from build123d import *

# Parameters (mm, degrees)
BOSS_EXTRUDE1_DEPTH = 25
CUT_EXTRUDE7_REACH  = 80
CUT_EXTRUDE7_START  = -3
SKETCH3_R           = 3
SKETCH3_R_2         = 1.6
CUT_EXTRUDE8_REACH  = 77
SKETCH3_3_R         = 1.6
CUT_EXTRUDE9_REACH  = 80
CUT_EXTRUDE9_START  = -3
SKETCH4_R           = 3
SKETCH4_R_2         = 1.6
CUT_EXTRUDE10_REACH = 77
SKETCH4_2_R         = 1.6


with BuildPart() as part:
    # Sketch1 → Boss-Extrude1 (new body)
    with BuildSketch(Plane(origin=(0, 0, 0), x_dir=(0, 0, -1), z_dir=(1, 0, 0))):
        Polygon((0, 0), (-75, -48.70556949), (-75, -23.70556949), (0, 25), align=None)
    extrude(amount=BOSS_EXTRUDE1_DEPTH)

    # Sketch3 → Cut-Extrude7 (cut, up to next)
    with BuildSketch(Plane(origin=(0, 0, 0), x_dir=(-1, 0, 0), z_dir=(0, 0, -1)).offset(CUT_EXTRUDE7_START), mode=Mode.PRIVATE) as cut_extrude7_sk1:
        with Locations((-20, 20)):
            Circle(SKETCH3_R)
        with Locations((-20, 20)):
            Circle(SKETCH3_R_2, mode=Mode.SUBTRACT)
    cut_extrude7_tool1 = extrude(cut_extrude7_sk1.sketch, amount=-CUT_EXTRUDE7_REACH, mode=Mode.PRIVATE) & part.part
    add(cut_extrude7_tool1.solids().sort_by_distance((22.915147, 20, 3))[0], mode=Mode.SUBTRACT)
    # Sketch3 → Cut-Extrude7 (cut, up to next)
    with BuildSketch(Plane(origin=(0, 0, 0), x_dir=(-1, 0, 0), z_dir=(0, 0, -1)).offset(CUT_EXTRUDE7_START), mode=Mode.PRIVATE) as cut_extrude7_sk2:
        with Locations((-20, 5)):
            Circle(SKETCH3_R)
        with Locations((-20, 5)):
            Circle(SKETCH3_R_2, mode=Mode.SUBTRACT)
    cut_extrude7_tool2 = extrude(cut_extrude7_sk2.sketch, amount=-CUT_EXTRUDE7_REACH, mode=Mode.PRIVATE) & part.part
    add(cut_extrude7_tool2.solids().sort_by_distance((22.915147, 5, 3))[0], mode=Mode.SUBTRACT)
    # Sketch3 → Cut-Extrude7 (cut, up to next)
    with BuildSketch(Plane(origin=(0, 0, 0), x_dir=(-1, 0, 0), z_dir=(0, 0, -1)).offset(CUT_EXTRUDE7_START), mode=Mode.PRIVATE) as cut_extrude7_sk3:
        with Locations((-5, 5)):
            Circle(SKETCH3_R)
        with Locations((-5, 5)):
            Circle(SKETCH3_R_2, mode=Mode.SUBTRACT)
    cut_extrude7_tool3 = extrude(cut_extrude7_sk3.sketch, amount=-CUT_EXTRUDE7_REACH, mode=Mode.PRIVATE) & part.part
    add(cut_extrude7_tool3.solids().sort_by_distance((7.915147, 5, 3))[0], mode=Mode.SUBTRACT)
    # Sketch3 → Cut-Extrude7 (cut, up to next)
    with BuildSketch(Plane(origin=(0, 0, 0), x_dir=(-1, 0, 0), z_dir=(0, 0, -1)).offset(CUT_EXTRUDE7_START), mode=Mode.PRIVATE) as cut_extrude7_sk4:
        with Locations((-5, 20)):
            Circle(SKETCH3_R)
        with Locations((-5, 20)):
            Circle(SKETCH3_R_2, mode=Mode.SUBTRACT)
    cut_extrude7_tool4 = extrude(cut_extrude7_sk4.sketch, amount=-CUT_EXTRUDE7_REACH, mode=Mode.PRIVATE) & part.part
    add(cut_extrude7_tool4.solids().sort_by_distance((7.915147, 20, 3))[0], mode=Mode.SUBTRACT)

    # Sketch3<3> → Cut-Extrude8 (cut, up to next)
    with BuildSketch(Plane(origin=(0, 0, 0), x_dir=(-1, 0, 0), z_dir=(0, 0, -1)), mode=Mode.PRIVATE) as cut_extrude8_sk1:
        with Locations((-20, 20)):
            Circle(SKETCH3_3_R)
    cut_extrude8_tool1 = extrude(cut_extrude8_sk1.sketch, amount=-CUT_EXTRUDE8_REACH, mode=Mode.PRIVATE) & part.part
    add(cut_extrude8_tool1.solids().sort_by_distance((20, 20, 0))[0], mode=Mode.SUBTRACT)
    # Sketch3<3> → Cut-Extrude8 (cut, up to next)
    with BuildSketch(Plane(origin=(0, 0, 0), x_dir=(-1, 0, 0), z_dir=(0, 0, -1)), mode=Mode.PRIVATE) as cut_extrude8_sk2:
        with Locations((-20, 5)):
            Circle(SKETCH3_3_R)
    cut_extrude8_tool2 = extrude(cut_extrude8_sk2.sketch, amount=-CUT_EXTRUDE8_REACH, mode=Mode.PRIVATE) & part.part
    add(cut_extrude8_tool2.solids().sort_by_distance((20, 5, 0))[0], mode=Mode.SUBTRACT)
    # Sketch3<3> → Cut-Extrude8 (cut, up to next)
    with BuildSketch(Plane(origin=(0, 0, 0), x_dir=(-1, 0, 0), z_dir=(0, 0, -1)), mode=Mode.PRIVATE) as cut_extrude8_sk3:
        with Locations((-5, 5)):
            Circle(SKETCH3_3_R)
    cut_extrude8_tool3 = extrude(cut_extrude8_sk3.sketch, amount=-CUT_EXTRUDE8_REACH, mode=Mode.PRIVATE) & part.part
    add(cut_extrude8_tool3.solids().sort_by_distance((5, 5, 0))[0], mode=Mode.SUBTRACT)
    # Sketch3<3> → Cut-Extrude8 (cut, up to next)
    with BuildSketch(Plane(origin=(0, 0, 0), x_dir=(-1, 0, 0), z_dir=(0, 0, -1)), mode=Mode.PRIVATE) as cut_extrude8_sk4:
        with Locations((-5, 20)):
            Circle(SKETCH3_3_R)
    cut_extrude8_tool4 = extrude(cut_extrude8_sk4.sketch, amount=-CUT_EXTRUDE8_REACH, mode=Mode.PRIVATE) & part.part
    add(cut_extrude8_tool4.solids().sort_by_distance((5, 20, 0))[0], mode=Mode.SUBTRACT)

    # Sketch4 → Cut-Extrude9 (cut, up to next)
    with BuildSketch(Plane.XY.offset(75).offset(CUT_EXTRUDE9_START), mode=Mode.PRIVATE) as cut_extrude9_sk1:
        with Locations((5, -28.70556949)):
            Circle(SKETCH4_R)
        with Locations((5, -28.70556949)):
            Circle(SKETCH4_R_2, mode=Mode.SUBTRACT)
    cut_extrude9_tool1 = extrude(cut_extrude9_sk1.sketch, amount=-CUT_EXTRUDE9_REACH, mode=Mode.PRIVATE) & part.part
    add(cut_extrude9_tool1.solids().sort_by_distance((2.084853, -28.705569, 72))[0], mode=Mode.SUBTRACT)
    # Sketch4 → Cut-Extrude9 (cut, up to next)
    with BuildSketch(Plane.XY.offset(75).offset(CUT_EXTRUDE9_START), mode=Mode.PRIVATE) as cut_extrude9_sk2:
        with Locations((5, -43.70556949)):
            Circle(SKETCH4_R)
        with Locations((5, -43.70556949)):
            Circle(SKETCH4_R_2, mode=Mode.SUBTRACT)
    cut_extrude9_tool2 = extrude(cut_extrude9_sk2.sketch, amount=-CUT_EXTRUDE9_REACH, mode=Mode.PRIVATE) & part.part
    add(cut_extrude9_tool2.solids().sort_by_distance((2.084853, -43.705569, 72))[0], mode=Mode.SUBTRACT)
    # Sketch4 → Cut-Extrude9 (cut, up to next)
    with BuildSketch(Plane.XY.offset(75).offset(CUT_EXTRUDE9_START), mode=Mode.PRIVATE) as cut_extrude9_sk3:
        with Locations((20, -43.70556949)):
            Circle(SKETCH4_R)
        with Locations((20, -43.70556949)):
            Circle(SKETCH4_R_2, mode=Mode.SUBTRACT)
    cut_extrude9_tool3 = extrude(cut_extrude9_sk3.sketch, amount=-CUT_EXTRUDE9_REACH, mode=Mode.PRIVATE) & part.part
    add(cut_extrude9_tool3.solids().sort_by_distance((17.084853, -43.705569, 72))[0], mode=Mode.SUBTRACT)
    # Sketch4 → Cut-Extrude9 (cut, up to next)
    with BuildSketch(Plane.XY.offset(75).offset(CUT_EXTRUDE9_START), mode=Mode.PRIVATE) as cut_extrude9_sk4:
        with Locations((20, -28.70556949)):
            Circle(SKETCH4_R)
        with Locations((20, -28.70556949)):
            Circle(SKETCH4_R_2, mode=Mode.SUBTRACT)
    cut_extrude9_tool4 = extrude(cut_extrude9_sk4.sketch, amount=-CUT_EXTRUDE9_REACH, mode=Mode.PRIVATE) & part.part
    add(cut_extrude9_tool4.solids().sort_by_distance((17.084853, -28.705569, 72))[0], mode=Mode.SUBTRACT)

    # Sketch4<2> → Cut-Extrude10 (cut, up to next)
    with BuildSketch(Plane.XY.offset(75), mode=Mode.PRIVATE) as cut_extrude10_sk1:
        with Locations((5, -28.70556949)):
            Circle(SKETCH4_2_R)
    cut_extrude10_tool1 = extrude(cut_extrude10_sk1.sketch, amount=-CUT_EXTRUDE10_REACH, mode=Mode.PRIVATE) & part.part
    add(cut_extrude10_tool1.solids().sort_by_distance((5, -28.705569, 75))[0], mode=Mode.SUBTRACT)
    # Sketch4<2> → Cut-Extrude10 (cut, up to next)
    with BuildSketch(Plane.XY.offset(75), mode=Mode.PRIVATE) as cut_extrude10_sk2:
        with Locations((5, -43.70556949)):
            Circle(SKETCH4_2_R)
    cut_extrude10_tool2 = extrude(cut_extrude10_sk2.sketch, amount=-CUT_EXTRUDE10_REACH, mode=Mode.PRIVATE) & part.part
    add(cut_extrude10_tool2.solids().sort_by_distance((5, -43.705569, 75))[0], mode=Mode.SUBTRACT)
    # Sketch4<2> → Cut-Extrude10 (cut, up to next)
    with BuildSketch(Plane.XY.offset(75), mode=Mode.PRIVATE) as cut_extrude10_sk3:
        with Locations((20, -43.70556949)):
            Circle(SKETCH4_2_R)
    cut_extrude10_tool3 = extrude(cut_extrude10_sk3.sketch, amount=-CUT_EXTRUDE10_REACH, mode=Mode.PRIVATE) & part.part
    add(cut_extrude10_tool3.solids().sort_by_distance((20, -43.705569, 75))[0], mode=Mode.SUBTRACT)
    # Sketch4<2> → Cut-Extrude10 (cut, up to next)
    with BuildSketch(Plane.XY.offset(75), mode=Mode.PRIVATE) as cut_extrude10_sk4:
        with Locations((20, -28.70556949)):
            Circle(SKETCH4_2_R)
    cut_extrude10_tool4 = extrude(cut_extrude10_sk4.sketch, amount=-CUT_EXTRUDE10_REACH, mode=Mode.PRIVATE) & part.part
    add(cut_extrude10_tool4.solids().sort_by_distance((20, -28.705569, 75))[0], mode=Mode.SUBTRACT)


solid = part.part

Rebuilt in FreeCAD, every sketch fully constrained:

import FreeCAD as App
import Part
import Sketcher
from FreeCAD import Vector
Q = App.Units.Quantity


def add_polygon(sketch, points):
    """Adds a closed chain of lines whose ends are joined by coincident constraints."""
    first, n = sketch.GeometryCount, len(points)
    for a, b in zip(points, points[1:] + points[:1]):
        sketch.addGeometry(Part.LineSegment(App.Vector(*a, 0), App.Vector(*b, 0)), False)
    for i in range(n):
        sketch.addConstraint(Sketcher.Constraint("Coincident", first + i, 2, first + (i + 1) % n, 1))

doc = App.newDocument("Part")
params = doc.addObject("Spreadsheet::Sheet", "Params")
for row, (alias, value) in enumerate([
    ("sketch1_width", "25 mm"),
    ("pad1_length", "25 mm"),
    ("sketch2_diameter", "6 mm"),
    ("sketch2_diameter2", "3.2 mm"),
    ("sketch3_diameter", "6 mm"),
    ("sketch3_diameter2", "3.2 mm"),
    ("sketch4_diameter", "6 mm"),
    ("sketch4_diameter2", "3.2 mm"),
    ("sketch5_diameter", "6 mm"),
    ("sketch5_diameter2", "3.2 mm"),
    ("sketch6_diameter", "3.2 mm"),
    ("sketch7_diameter", "3.2 mm"),
    ("sketch8_diameter", "3.2 mm"),
    ("sketch9_diameter", "3.2 mm"),
    ("sketch10_diameter", "6 mm"),
    ("sketch10_diameter2", "3.2 mm"),
    ("sketch11_diameter", "6 mm"),
    ("sketch11_diameter2", "3.2 mm"),
    ("sketch12_diameter", "6 mm"),
    ("sketch12_diameter2", "3.2 mm"),
    ("sketch13_diameter", "6 mm"),
    ("sketch13_diameter2", "3.2 mm"),
    ("sketch14_diameter", "3.2 mm"),
    ("sketch15_diameter", "3.2 mm"),
    ("sketch16_diameter", "3.2 mm"),
    ("sketch17_diameter", "3.2 mm"),
], start=1):
    params.set(f"A{row}", alias)
    params.set(f"B{row}", "=" + value)
    params.setAlias(f"B{row}", alias)

body = doc.addObject("PartDesign::Body", "Body")

sketch1 = body.newObject("Sketcher::SketchObject", "Sketch")
sketch1.AttachmentSupport = (doc.getObject("YZ_Plane"), [""])
sketch1.MapMode = "FlatFace"
add_polygon(sketch1, [(-49, 75), (0, 0), (25, 0), (-24, 75)])
sketch1.addConstraint([
    Sketcher.Constraint("Horizontal", 1),
    Sketcher.Constraint("Horizontal", 3),
    Sketcher.Constraint("Coincident", 0, 2, -1, 1),
    Sketcher.Constraint("Parallel", 0, 2),
    Sketcher.Constraint("DistanceX", 1, 1, 1, 2, Q("25 mm")),
    Sketcher.Constraint("Angle", 0, Q("-57 deg")),
    Sketcher.Constraint("DistanceY", -1, 1, 2, 2, Q("75 mm")),
])
sketch1.setExpression("Constraints[8]", "Params.sketch1_width")
pad1 = body.newObject("PartDesign::Pad", "Pad")
pad1.Profile = sketch1
pad1.setExpression("Length", "Params.pad1_length")

sketch2 = body.newObject("Sketcher::SketchObject", "Sketch001")
sketch2.AttachmentSupport = (doc.getObject("XY_Plane"), [""])
sketch2.MapMode = "FlatFace"
sketch2.AttachmentOffset = App.Placement(Vector(0, 0, 3), App.Rotation())
sketch2.addGeometry([
    Part.Circle(Vector(20, 20, 0), Vector(0, 0, 1), 3),
    Part.Circle(Vector(20, 20, 0), Vector(0, 0, 1), 1.6),
], False)
sketch2.addConstraint([
    Sketcher.Constraint("Coincident", 1, 3, 0, 3),
    Sketcher.Constraint("Diameter", 0, Q("6 mm")),
    Sketcher.Constraint("Diameter", 1, Q("3.2 mm")),
    Sketcher.Constraint("DistanceX", -1, 1, 0, 3, Q("20 mm")),
    Sketcher.Constraint("DistanceY", -1, 1, 0, 3, Q("20 mm")),
])
sketch2.setExpression("Constraints[1]", "Params.sketch2_diameter")
sketch2.setExpression("Constraints[2]", "Params.sketch2_diameter2")
pocket1 = body.newObject("PartDesign::Pocket", "Pocket")
pocket1.Profile = sketch2
pocket1.Type = "UpToFirst"
pocket1.Reversed = True

sketch3 = body.newObject("Sketcher::SketchObject", "Sketch002")
sketch3.AttachmentSupport = (doc.getObject("XY_Plane"), [""])
sketch3.MapMode = "FlatFace"
sketch3.AttachmentOffset = App.Placement(Vector(0, 0, 3), App.Rotation())
sketch3.addGeometry([
    Part.Circle(Vector(20, 5, 0), Vector(0, 0, 1), 3),
    Part.Circle(Vector(20, 5, 0), Vector(0, 0, 1), 1.6),
], False)
sketch3.addConstraint([
    Sketcher.Constraint("Coincident", 1, 3, 0, 3),
    Sketcher.Constraint("Diameter", 0, Q("6 mm")),
    Sketcher.Constraint("Diameter", 1, Q("3.2 mm")),
    Sketcher.Constraint("DistanceX", -1, 1, 0, 3, Q("20 mm")),
    Sketcher.Constraint("DistanceY", -1, 1, 0, 3, Q("5 mm")),
])
sketch3.setExpression("Constraints[1]", "Params.sketch3_diameter")
sketch3.setExpression("Constraints[2]", "Params.sketch3_diameter2")
pocket2 = body.newObject("PartDesign::Pocket", "Pocket001")
pocket2.Profile = sketch3
pocket2.Type = "UpToFirst"
pocket2.Reversed = True

sketch4 = body.newObject("Sketcher::SketchObject", "Sketch003")
sketch4.AttachmentSupport = (doc.getObject("XY_Plane"), [""])
sketch4.MapMode = "FlatFace"
sketch4.AttachmentOffset = App.Placement(Vector(0, 0, 3), App.Rotation())
sketch4.addGeometry([
    Part.Circle(Vector(5, 5, 0), Vector(0, 0, 1), 3),
    Part.Circle(Vector(5, 5, 0), Vector(0, 0, 1), 1.6),
], False)
sketch4.addConstraint([
    Sketcher.Constraint("Coincident", 1, 3, 0, 3),
    Sketcher.Constraint("Diameter", 0, Q("6 mm")),
    Sketcher.Constraint("Diameter", 1, Q("3.2 mm")),
    Sketcher.Constraint("DistanceX", -1, 1, 0, 3, Q("5 mm")),
    Sketcher.Constraint("DistanceY", -1, 1, 0, 3, Q("5 mm")),
])
sketch4.setExpression("Constraints[1]", "Params.sketch4_diameter")
sketch4.setExpression("Constraints[2]", "Params.sketch4_diameter2")
pocket3 = body.newObject("PartDesign::Pocket", "Pocket002")
pocket3.Profile = sketch4
pocket3.Type = "UpToFirst"
pocket3.Reversed = True

sketch5 = body.newObject("Sketcher::SketchObject", "Sketch004")
sketch5.AttachmentSupport = (doc.getObject("XY_Plane"), [""])
sketch5.MapMode = "FlatFace"
sketch5.AttachmentOffset = App.Placement(Vector(0, 0, 3), App.Rotation())
sketch5.addGeometry([
    Part.Circle(Vector(5, 20, 0), Vector(0, 0, 1), 3),
    Part.Circle(Vector(5, 20, 0), Vector(0, 0, 1), 1.6),
], False)
sketch5.addConstraint([
    Sketcher.Constraint("Coincident", 1, 3, 0, 3),
    Sketcher.Constraint("Diameter", 0, Q("6 mm")),
    Sketcher.Constraint("Diameter", 1, Q("3.2 mm")),
    Sketcher.Constraint("DistanceX", -1, 1, 0, 3, Q("5 mm")),
    Sketcher.Constraint("DistanceY", -1, 1, 0, 3, Q("20 mm")),
])
sketch5.setExpression("Constraints[1]", "Params.sketch5_diameter")
sketch5.setExpression("Constraints[2]", "Params.sketch5_diameter2")
pocket4 = body.newObject("PartDesign::Pocket", "Pocket003")
pocket4.Profile = sketch5
pocket4.Type = "UpToFirst"
pocket4.Reversed = True

sketch6 = body.newObject("Sketcher::SketchObject", "Sketch005")
sketch6.AttachmentSupport = (doc.getObject("XY_Plane"), [""])
sketch6.MapMode = "FlatFace"
sketch6.addGeometry(Part.Circle(Vector(20, 20, 0), Vector(0, 0, 1), 1.6), False)
sketch6.addConstraint([
    Sketcher.Constraint("Diameter", 0, Q("3.2 mm")),
    Sketcher.Constraint("DistanceX", -1, 1, 0, 3, Q("20 mm")),
    Sketcher.Constraint("DistanceY", -1, 1, 0, 3, Q("20 mm")),
])
sketch6.setExpression("Constraints[0]", "Params.sketch6_diameter")
pocket5 = body.newObject("PartDesign::Pocket", "Pocket004")
pocket5.Profile = sketch6
pocket5.Type = "UpToFirst"
pocket5.Reversed = True

sketch7 = body.newObject("Sketcher::SketchObject", "Sketch006")
sketch7.AttachmentSupport = (doc.getObject("XY_Plane"), [""])
sketch7.MapMode = "FlatFace"
sketch7.addGeometry(Part.Circle(Vector(20, 5, 0), Vector(0, 0, 1), 1.6), False)
sketch7.addConstraint([
    Sketcher.Constraint("Diameter", 0, Q("3.2 mm")),
    Sketcher.Constraint("DistanceX", -1, 1, 0, 3, Q("20 mm")),
    Sketcher.Constraint("DistanceY", -1, 1, 0, 3, Q("5 mm")),
])
sketch7.setExpression("Constraints[0]", "Params.sketch7_diameter")
pocket6 = body.newObject("PartDesign::Pocket", "Pocket005")
pocket6.Profile = sketch7
pocket6.Type = "UpToFirst"
pocket6.Reversed = True

sketch8 = body.newObject("Sketcher::SketchObject", "Sketch007")
sketch8.AttachmentSupport = (doc.getObject("XY_Plane"), [""])
sketch8.MapMode = "FlatFace"
sketch8.addGeometry(Part.Circle(Vector(5, 5, 0), Vector(0, 0, 1), 1.6), False)
sketch8.addConstraint([
    Sketcher.Constraint("Diameter", 0, Q("3.2 mm")),
    Sketcher.Constraint("DistanceX", -1, 1, 0, 3, Q("5 mm")),
    Sketcher.Constraint("DistanceY", -1, 1, 0, 3, Q("5 mm")),
])
sketch8.setExpression("Constraints[0]", "Params.sketch8_diameter")
pocket7 = body.newObject("PartDesign::Pocket", "Pocket006")
pocket7.Profile = sketch8
pocket7.Type = "UpToFirst"
pocket7.Reversed = True

sketch9 = body.newObject("Sketcher::SketchObject", "Sketch008")
sketch9.AttachmentSupport = (doc.getObject("XY_Plane"), [""])
sketch9.MapMode = "FlatFace"
sketch9.addGeometry(Part.Circle(Vector(5, 20, 0), Vector(0, 0, 1), 1.6), False)
sketch9.addConstraint([
    Sketcher.Constraint("Diameter", 0, Q("3.2 mm")),
    Sketcher.Constraint("DistanceX", -1, 1, 0, 3, Q("5 mm")),
    Sketcher.Constraint("DistanceY", -1, 1, 0, 3, Q("20 mm")),
])
sketch9.setExpression("Constraints[0]", "Params.sketch9_diameter")
pocket8 = body.newObject("PartDesign::Pocket", "Pocket007")
pocket8.Profile = sketch9
pocket8.Type = "UpToFirst"
pocket8.Reversed = True

sketch10 = body.newObject("Sketcher::SketchObject", "Sketch009")
sketch10.AttachmentSupport = (doc.getObject("XY_Plane"), [""])
sketch10.MapMode = "FlatFace"
sketch10.AttachmentOffset = App.Placement(Vector(0, 0, 72), App.Rotation())
sketch10.addGeometry([
    Part.Circle(Vector(5, -28.7, 0), Vector(0, 0, 1), 3),
    Part.Circle(Vector(5, -28.7, 0), Vector(0, 0, 1), 1.6),
], False)
sketch10.addConstraint([
    Sketcher.Constraint("Coincident", 1, 3, 0, 3),
    Sketcher.Constraint("Diameter", 0, Q("6 mm")),
    Sketcher.Constraint("Diameter", 1, Q("3.2 mm")),
    Sketcher.Constraint("DistanceX", -1, 1, 0, 3, Q("5 mm")),
    Sketcher.Constraint("DistanceY", 0, 3, -1, 1, Q("28.705569 mm")),
])
sketch10.setExpression("Constraints[1]", "Params.sketch10_diameter")
sketch10.setExpression("Constraints[2]", "Params.sketch10_diameter2")
pocket9 = body.newObject("PartDesign::Pocket", "Pocket008")
pocket9.Profile = sketch10
pocket9.Type = "UpToFirst"

sketch11 = body.newObject("Sketcher::SketchObject", "Sketch010")
sketch11.AttachmentSupport = (doc.getObject("XY_Plane"), [""])
sketch11.MapMode = "FlatFace"
sketch11.AttachmentOffset = App.Placement(Vector(0, 0, 72), App.Rotation())
sketch11.addGeometry([
    Part.Circle(Vector(5, -43.7, 0), Vector(0, 0, 1), 3),
    Part.Circle(Vector(5, -43.7, 0), Vector(0, 0, 1), 1.6),
], False)
sketch11.addConstraint([
    Sketcher.Constraint("Coincident", 1, 3, 0, 3),
    Sketcher.Constraint("Diameter", 0, Q("6 mm")),
    Sketcher.Constraint("Diameter", 1, Q("3.2 mm")),
    Sketcher.Constraint("DistanceX", -1, 1, 0, 3, Q("5 mm")),
    Sketcher.Constraint("DistanceY", 0, 3, -1, 1, Q("43.705569 mm")),
])
sketch11.setExpression("Constraints[1]", "Params.sketch11_diameter")
sketch11.setExpression("Constraints[2]", "Params.sketch11_diameter2")
pocket10 = body.newObject("PartDesign::Pocket", "Pocket009")
pocket10.Profile = sketch11
pocket10.Type = "UpToFirst"

sketch12 = body.newObject("Sketcher::SketchObject", "Sketch011")
sketch12.AttachmentSupport = (doc.getObject("XY_Plane"), [""])
sketch12.MapMode = "FlatFace"
sketch12.AttachmentOffset = App.Placement(Vector(0, 0, 72), App.Rotation())
sketch12.addGeometry([
    Part.Circle(Vector(20, -43.7, 0), Vector(0, 0, 1), 3),
    Part.Circle(Vector(20, -43.7, 0), Vector(0, 0, 1), 1.6),
], False)
sketch12.addConstraint([
    Sketcher.Constraint("Coincident", 1, 3, 0, 3),
    Sketcher.Constraint("Diameter", 0, Q("6 mm")),
    Sketcher.Constraint("Diameter", 1, Q("3.2 mm")),
    Sketcher.Constraint("DistanceX", -1, 1, 0, 3, Q("20 mm")),
    Sketcher.Constraint("DistanceY", 0, 3, -1, 1, Q("43.705569 mm")),
])
sketch12.setExpression("Constraints[1]", "Params.sketch12_diameter")
sketch12.setExpression("Constraints[2]", "Params.sketch12_diameter2")
pocket11 = body.newObject("PartDesign::Pocket", "Pocket010")
pocket11.Profile = sketch12
pocket11.Type = "UpToFirst"

sketch13 = body.newObject("Sketcher::SketchObject", "Sketch012")
sketch13.AttachmentSupport = (doc.getObject("XY_Plane"), [""])
sketch13.MapMode = "FlatFace"
sketch13.AttachmentOffset = App.Placement(Vector(0, 0, 72), App.Rotation())
sketch13.addGeometry([
    Part.Circle(Vector(20, -28.7, 0), Vector(0, 0, 1), 3),
    Part.Circle(Vector(20, -28.7, 0), Vector(0, 0, 1), 1.6),
], False)
sketch13.addConstraint([
    Sketcher.Constraint("Coincident", 1, 3, 0, 3),
    Sketcher.Constraint("Diameter", 0, Q("6 mm")),
    Sketcher.Constraint("Diameter", 1, Q("3.2 mm")),
    Sketcher.Constraint("DistanceX", -1, 1, 0, 3, Q("20 mm")),
    Sketcher.Constraint("DistanceY", 0, 3, -1, 1, Q("28.705569 mm")),
])
sketch13.setExpression("Constraints[1]", "Params.sketch13_diameter")
sketch13.setExpression("Constraints[2]", "Params.sketch13_diameter2")
pocket12 = body.newObject("PartDesign::Pocket", "Pocket011")
pocket12.Profile = sketch13
pocket12.Type = "UpToFirst"

sketch14 = body.newObject("Sketcher::SketchObject", "Sketch013")
sketch14.AttachmentSupport = (doc.getObject("XY_Plane"), [""])
sketch14.MapMode = "FlatFace"
sketch14.AttachmentOffset = App.Placement(Vector(0, 0, 75), App.Rotation())
sketch14.addGeometry(Part.Circle(Vector(5, -28.7, 0), Vector(0, 0, 1), 1.6), False)
sketch14.addConstraint([
    Sketcher.Constraint("Diameter", 0, Q("3.2 mm")),
    Sketcher.Constraint("DistanceX", -1, 1, 0, 3, Q("5 mm")),
    Sketcher.Constraint("DistanceY", 0, 3, -1, 1, Q("28.705569 mm")),
])
sketch14.setExpression("Constraints[0]", "Params.sketch14_diameter")
pocket13 = body.newObject("PartDesign::Pocket", "Pocket012")
pocket13.Profile = sketch14
pocket13.Type = "UpToFirst"

sketch15 = body.newObject("Sketcher::SketchObject", "Sketch014")
sketch15.AttachmentSupport = (doc.getObject("XY_Plane"), [""])
sketch15.MapMode = "FlatFace"
sketch15.AttachmentOffset = App.Placement(Vector(0, 0, 75), App.Rotation())
sketch15.addGeometry(Part.Circle(Vector(5, -43.7, 0), Vector(0, 0, 1), 1.6), False)
sketch15.addConstraint([
    Sketcher.Constraint("Diameter", 0, Q("3.2 mm")),
    Sketcher.Constraint("DistanceX", -1, 1, 0, 3, Q("5 mm")),
    Sketcher.Constraint("DistanceY", 0, 3, -1, 1, Q("43.705569 mm")),
])
sketch15.setExpression("Constraints[0]", "Params.sketch15_diameter")
pocket14 = body.newObject("PartDesign::Pocket", "Pocket013")
pocket14.Profile = sketch15
pocket14.Type = "UpToFirst"

sketch16 = body.newObject("Sketcher::SketchObject", "Sketch015")
sketch16.AttachmentSupport = (doc.getObject("XY_Plane"), [""])
sketch16.MapMode = "FlatFace"
sketch16.AttachmentOffset = App.Placement(Vector(0, 0, 75), App.Rotation())
sketch16.addGeometry(Part.Circle(Vector(20, -43.7, 0), Vector(0, 0, 1), 1.6), False)
sketch16.addConstraint([
    Sketcher.Constraint("Diameter", 0, Q("3.2 mm")),
    Sketcher.Constraint("DistanceX", -1, 1, 0, 3, Q("20 mm")),
    Sketcher.Constraint("DistanceY", 0, 3, -1, 1, Q("43.705569 mm")),
])
sketch16.setExpression("Constraints[0]", "Params.sketch16_diameter")
pocket15 = body.newObject("PartDesign::Pocket", "Pocket014")
pocket15.Profile = sketch16
pocket15.Type = "UpToFirst"

sketch17 = body.newObject("Sketcher::SketchObject", "Sketch016")
sketch17.AttachmentSupport = (doc.getObject("XY_Plane"), [""])
sketch17.MapMode = "FlatFace"
sketch17.AttachmentOffset = App.Placement(Vector(0, 0, 75), App.Rotation())
sketch17.addGeometry(Part.Circle(Vector(20, -28.7, 0), Vector(0, 0, 1), 1.6), False)
sketch17.addConstraint([
    Sketcher.Constraint("Diameter", 0, Q("3.2 mm")),
    Sketcher.Constraint("DistanceX", -1, 1, 0, 3, Q("20 mm")),
    Sketcher.Constraint("DistanceY", 0, 3, -1, 1, Q("28.705569 mm")),
])
sketch17.setExpression("Constraints[0]", "Params.sketch17_diameter")
pocket16 = body.newObject("PartDesign::Pocket", "Pocket015")
pocket16.Profile = sketch17
pocket16.Type = "UpToFirst"

doc.recompute()
